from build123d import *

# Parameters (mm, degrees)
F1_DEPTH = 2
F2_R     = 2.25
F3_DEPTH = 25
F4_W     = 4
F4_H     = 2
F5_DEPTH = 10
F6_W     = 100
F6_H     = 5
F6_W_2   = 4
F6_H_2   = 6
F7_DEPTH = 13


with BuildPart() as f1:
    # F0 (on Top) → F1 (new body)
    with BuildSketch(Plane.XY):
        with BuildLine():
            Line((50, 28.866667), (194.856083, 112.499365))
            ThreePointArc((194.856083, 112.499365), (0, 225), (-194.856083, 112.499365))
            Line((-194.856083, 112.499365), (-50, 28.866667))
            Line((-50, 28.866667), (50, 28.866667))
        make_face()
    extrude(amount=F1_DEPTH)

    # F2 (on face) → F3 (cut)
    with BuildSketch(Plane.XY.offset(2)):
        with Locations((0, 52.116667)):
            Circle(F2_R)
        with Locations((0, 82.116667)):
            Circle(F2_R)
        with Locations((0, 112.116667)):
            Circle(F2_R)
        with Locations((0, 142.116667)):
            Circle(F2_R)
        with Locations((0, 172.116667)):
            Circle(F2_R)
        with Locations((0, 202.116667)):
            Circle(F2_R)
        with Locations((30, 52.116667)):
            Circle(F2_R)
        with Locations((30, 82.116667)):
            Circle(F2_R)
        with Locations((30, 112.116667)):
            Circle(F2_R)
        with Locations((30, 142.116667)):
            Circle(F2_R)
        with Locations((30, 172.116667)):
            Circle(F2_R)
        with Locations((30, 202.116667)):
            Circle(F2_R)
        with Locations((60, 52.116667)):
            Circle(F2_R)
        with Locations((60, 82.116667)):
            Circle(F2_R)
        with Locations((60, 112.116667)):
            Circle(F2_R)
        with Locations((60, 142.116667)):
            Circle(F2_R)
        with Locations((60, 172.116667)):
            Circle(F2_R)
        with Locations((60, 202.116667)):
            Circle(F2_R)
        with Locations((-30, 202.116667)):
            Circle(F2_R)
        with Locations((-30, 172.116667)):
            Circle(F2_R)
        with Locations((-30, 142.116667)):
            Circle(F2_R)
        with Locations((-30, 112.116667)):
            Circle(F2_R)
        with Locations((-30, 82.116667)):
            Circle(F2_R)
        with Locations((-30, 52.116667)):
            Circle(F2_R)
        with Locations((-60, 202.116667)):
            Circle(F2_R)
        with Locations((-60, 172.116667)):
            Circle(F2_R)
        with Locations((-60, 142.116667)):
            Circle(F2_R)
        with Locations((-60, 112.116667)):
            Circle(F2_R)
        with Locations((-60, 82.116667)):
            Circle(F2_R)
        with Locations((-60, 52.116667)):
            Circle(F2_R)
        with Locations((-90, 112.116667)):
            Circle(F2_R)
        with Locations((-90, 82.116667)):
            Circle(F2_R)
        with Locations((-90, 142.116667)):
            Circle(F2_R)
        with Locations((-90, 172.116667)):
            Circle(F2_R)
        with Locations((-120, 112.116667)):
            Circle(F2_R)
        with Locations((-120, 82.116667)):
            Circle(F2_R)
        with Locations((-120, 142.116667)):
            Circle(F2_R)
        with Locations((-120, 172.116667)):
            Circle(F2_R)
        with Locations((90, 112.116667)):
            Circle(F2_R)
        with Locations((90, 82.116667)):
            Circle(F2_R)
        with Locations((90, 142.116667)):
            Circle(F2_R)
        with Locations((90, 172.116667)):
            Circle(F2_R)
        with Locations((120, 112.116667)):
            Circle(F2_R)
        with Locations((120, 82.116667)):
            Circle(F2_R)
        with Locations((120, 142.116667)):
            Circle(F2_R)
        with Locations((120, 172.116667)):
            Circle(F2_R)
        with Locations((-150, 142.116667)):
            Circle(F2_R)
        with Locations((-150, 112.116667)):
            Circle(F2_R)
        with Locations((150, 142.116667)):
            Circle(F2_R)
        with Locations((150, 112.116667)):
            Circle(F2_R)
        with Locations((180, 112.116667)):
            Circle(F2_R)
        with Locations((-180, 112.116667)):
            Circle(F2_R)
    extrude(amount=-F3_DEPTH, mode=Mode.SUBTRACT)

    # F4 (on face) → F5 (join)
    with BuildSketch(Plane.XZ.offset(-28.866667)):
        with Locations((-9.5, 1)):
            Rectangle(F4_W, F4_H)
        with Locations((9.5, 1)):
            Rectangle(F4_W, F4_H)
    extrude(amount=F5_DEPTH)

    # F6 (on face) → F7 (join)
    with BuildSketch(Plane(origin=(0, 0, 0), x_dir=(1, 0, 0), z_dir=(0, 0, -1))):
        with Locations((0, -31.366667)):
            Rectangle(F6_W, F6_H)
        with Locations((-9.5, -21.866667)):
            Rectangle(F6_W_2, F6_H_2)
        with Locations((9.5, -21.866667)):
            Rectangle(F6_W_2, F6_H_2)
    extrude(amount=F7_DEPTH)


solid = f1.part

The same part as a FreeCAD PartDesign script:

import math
import FreeCAD as App
import Part
import Sketcher

V = App.Vector
Q = App.Units.Quantity


def add_polygon(sketch, points):
    """Adds a closed chain of lines whose ends are joined by coincident constraints."""
    first, n = sketch.GeometryCount, len(points)
    for a, b in zip(points, points[1:] + points[:1]):
        sketch.addGeometry(Part.LineSegment(App.Vector(*a, 0), App.Vector(*b, 0)), False)
    for i in range(n):
        sketch.addConstraint(Sketcher.Constraint("Coincident", first + i, 2, first + (i + 1) % n, 1))

doc = App.newDocument("Part")
params = doc.addObject("Spreadsheet::Sheet", "Params")
for row, (alias, value) in enumerate([
    ("sketch1_radius", "225.000001 mm"),
    ("sketch1_width", "100 mm"),
    ("pad1_length", "2 mm"),
    ("sketch2_diameter", "4.5 mm"),
    ("pocket1_length", "25 mm"),
    ("sketch3_width", "4 mm"),
    ("sketch3_height", "2 mm"),
    ("pad2_length", "10 mm"),
    ("sketch4_width", "100 mm"),
    ("sketch4_width2", "4 mm"),
    ("sketch4_height", "5 mm"),
    ("sketch4_height2", "6 mm"),
    ("pad3_length", "13 mm"),
], start=1):
    params.set(f"A{row}", alias)
    params.set(f"B{row}", "=" + value)
    params.setAlias(f"B{row}", alias)

body = doc.addObject("PartDesign::Body", "Body")

# Sketch on XY plane
sketch1 = doc.addObject("Sketcher::SketchObject", "Sketch")
body.addObject(sketch1)
sketch1.AttachmentSupport = (doc.XY_Plane, [""])
sketch1.MapMode = "FlatFace"
sketch1.addGeometry([
    Part.LineSegment(V(50, 29, 0), V(195, 112, 0)),
    Part.ArcOfCircle(Part.Circle(V(0, 0, 0), V(0, 0, 1), 225), math.radians(30), math.radians(150)),
    Part.LineSegment(V(-195, 112, 0), V(-50, 29, 0)),
    Part.LineSegment(V(-50, 29, 0), V(50, 29, 0)),
], False)
sketch1.addConstraint([
    Sketcher.Constraint("Coincident", 0, 2, 1, 1),
    Sketcher.Constraint("Coincident", 1, 2, 2, 1),
    Sketcher.Constraint("Coincident", 2, 2, 3, 1),
    Sketcher.Constraint("Coincident", 3, 2, 0, 1),
    Sketcher.Constraint("Horizontal", 3),
    Sketcher.Constraint("Coincident", 1, 3, -1, 1),
    Sketcher.Constraint("Horizontal", 0, 2, 1, 2),
    Sketcher.Constraint("Equal", 0, 2),
    Sketcher.Constraint("Radius", 1, Q("225.000001 mm")),
    Sketcher.Constraint("DistanceX", 3, 1, 3, 2, Q("100 mm")),
    Sketcher.Constraint("Angle", 0, Q("30 deg")),
    Sketcher.Constraint("DistanceY", 2, 2, 0, 2, Q("83.632698 mm")),
])
sketch1.setExpression("Constraints[8]", "Params.sketch1_radius")
sketch1.setExpression("Constraints[9]", "Params.sketch1_width")
pad1 = doc.addObject("PartDesign::Pad", "Pad")
body.addObject(pad1)
pad1.Profile = sketch1
pad1.setExpression("Length", "Params.pad1_length")

# Sketch on XY plane
sketch2 = doc.addObject("Sketcher::SketchObject", "Sketch001")
body.addObject(sketch2)
sketch2.AttachmentSupport = (doc.XY_Plane, [""])
sketch2.MapMode = "FlatFace"
sketch2.AttachmentOffset = App.Placement(V(0, 0, 2), App.Rotation())
sketch2.addGeometry([
    Part.Circle(V(0, 52.1, 0), V(0, 0, 1), 2.2),  # 0
    Part.Circle(V(0, 82.1, 0), V(0, 0, 1), 2.2),  # 1
    Part.Circle(V(0, 112.1, 0), V(0, 0, 1), 2.2),  # 2
    Part.Circle(V(0, 142.1, 0), V(0, 0, 1), 2.2),  # 3
    Part.Circle(V(0, 172.1, 0), V(0, 0, 1), 2.2),  # 4
    Part.Circle(V(0, 202.1, 0), V(0, 0, 1), 2.2),  # 5
    Part.Circle(V(30, 52.1, 0), V(0, 0, 1), 2.2),  # 6
    Part.Circle(V(30, 82.1, 0), V(0, 0, 1), 2.2),  # 7
    Part.Circle(V(30, 112.1, 0), V(0, 0, 1), 2.2),  # 8
    Part.Circle(V(30, 142.1, 0), V(0, 0, 1), 2.2),  # 9
    Part.Circle(V(30, 172.1, 0), V(0, 0, 1), 2.2),  # 10
    Part.Circle(V(30, 202.1, 0), V(0, 0, 1), 2.2),  # 11
    Part.Circle(V(60, 52.1, 0), V(0, 0, 1), 2.2),  # 12
    Part.Circle(V(60, 82.1, 0), V(0, 0, 1), 2.2),  # 13
    Part.Circle(V(60, 112.1, 0), V(0, 0, 1), 2.2),  # 14
    Part.Circle(V(60, 142.1, 0), V(0, 0, 1), 2.2),  # 15
    Part.Circle(V(60, 172.1, 0), V(0, 0, 1), 2.2),  # 16
    Part.Circle(V(60, 202.1, 0), V(0, 0, 1), 2.2),  # 17
    Part.Circle(V(-30, 202.1, 0), V(0, 0, 1), 2.2),  # 18
    Part.Circle(V(-30, 172.1, 0), V(0, 0, 1), 2.2),  # 19
    Part.Circle(V(-30, 142.1, 0), V(0, 0, 1), 2.2),  # 20
    Part.Circle(V(-30, 112.1, 0), V(0, 0, 1), 2.2),  # 21
    Part.Circle(V(-30, 82.1, 0), V(0, 0, 1), 2.2),  # 22
    Part.Circle(V(-30, 52.1, 0), V(0, 0, 1), 2.2),  # 23
    Part.Circle(V(-60, 202.1, 0), V(0, 0, 1), 2.2),  # 24
    Part.Circle(V(-60, 172.1, 0), V(0, 0, 1), 2.2),  # 25
    Part.Circle(V(-60, 142.1, 0), V(0, 0, 1), 2.2),  # 26
    Part.Circle(V(-60, 112.1, 0), V(0, 0, 1), 2.2),  # 27
    Part.Circle(V(-60, 82.1, 0), V(0, 0, 1), 2.2),  # 28
    Part.Circle(V(-60, 52.1, 0), V(0, 0, 1), 2.2),  # 29
    Part.Circle(V(-90, 112.1, 0), V(0, 0, 1), 2.2),  # 30
    Part.Circle(V(-90, 82.1, 0), V(0, 0, 1), 2.2),  # 31
    Part.Circle(V(-90, 142.1, 0), V(0, 0, 1), 2.2),  # 32
    Part.Circle(V(-90, 172.1, 0), V(0, 0, 1), 2.2),  # 33
    Part.Circle(V(-120, 112.1, 0), V(0, 0, 1), 2.2),  # 34
    Part.Circle(V(-120, 82.1, 0), V(0, 0, 1), 2.2),  # 35
    Part.Circle(V(-120, 142.1, 0), V(0, 0, 1), 2.2),  # 36
    Part.Circle(V(-120, 172.1, 0), V(0, 0, 1), 2.2),  # 37
    Part.Circle(V(90, 112.1, 0), V(0, 0, 1), 2.2),  # 38
    Part.Circle(V(90, 82.1, 0), V(0, 0, 1), 2.2),  # 39
    Part.Circle(V(90, 142.1, 0), V(0, 0, 1), 2.2),  # 40
    Part.Circle(V(90, 172.1, 0), V(0, 0, 1), 2.2),  # 41
    Part.Circle(V(120, 112.1, 0), V(0, 0, 1), 2.2),  # 42
    Part.Circle(V(120, 82.1, 0), V(0, 0, 1), 2.2),  # 43
    Part.Circle(V(120, 142.1, 0), V(0, 0, 1), 2.2),  # 44
    Part.Circle(V(120, 172.1, 0), V(0, 0, 1), 2.2),  # 45
    Part.Circle(V(-150, 142.1, 0), V(0, 0, 1), 2.2),  # 46
    Part.Circle(V(-150, 112.1, 0), V(0, 0, 1), 2.2),  # 47
    Part.Circle(V(150, 142.1, 0), V(0, 0, 1), 2.2),  # 48
    Part.Circle(V(150, 112.1, 0), V(0, 0, 1), 2.2),  # 49
    Part.Circle(V(180, 112.1, 0), V(0, 0, 1), 2.2),  # 50
    Part.Circle(V(-180, 112.1, 0), V(0, 0, 1), 2.2),  # 51
], False)
sketch2.addConstraint([
    Sketcher.Constraint("Equal", 0, 1),
    Sketcher.Constraint("Equal", 1, 2),
    Sketcher.Constraint("Equal", 2, 3),
    Sketcher.Constraint("Equal", 3, 4),
    Sketcher.Constraint("Equal", 4, 5),
    Sketcher.Constraint("Equal", 5, 6),
    Sketcher.Constraint("Equal", 6, 7),
    Sketcher.Constraint("Equal", 7, 8),
    Sketcher.Constraint("Equal", 8, 9),
    Sketcher.Constraint("Equal", 9, 10),
    Sketcher.Constraint("Equal", 10, 11),
    Sketcher.Constraint("Equal", 11, 12),
    Sketcher.Constraint("Equal", 12, 13),
    Sketcher.Constraint("Equal", 13, 14),
    Sketcher.Constraint("Equal", 14, 15),
    Sketcher.Constraint("Equal", 15, 16),
    Sketcher.Constraint("Equal", 16, 17),
    Sketcher.Constraint("Equal", 17, 18),
    Sketcher.Constraint("Equal", 18, 19),
    Sketcher.Constraint("Equal", 19, 20),
    Sketcher.Constraint("Equal", 20, 21),
    Sketcher.Constraint("Equal", 21, 22),
    Sketcher.Constraint("Equal", 22, 23),
    Sketcher.Constraint("Equal", 23, 24),
    Sketcher.Constraint("Equal", 24, 25),
    Sketcher.Constraint("Equal", 25, 26),
    Sketcher.Constraint("Equal", 26, 27),
    Sketcher.Constraint("Equal", 27, 28),
    Sketcher.Constraint("Equal", 28, 29),
    Sketcher.Constraint("Equal", 29, 30),
    Sketcher.Constraint("Equal", 30, 31),
    Sketcher.Constraint("Equal", 31, 32),
    Sketcher.Constraint("Equal", 32, 33),
    Sketcher.Constraint("Equal", 33, 34),
    Sketcher.Constraint("Equal", 34, 35),
    Sketcher.Constraint("Equal", 35, 36),
    Sketcher.Constraint("Equal", 36, 37),
    Sketcher.Constraint("Equal", 37, 38),
    Sketcher.Constraint("Equal", 38, 39),
    Sketcher.Constraint("Equal", 39, 40),
    Sketcher.Constraint("Equal", 40, 41),
    Sketcher.Constraint("Equal", 41, 42),
    Sketcher.Constraint("Equal", 42, 43),
    Sketcher.Constraint("Equal", 43, 44),
    Sketcher.Constraint("Equal", 44, 45),
    Sketcher.Constraint("Equal", 45, 46),
    Sketcher.Constraint("Equal", 46, 47),
    Sketcher.Constraint("Equal", 47, 48),
    Sketcher.Constraint("Equal", 48, 49),
    Sketcher.Constraint("Equal", 49, 50),
    Sketcher.Constraint("Equal", 50, 51),
    Sketcher.Constraint("Symmetric", 11, 3, 18, 3, -2),
    Sketcher.Constraint("Symmetric", 10, 3, 19, 3, -2),
    Sketcher.Constraint("Symmetric", 9, 3, 20, 3, -2),
    Sketcher.Constraint("Symmetric", 8, 3, 21, 3, -2),
    Sketcher.Constraint("Symmetric", 7, 3, 22, 3, -2),
    Sketcher.Constraint("Symmetric", 6, 3, 23, 3, -2),
    Sketcher.Constraint("Symmetric", 17, 3, 24, 3, -2),
    Sketcher.Constraint("Symmetric", 16, 3, 25, 3, -2),
    Sketcher.Constraint("Symmetric", 15, 3, 26, 3, -2),
    Sketcher.Constraint("Symmetric", 14, 3, 27, 3, -2),
    Sketcher.Constraint("Symmetric", 13, 3, 28, 3, -2),
    Sketcher.Constraint("Symmetric", 12, 3, 29, 3, -2),
    Sketcher.Constraint("Symmetric", 30, 3, 38, 3, -2),
    Sketcher.Constraint("Symmetric", 31, 3, 39, 3, -2),
    Sketcher.Constraint("Symmetric", 32, 3, 40, 3, -2),
    Sketcher.Constraint("Symmetric", 33, 3, 41, 3, -2),
    Sketcher.Constraint("Symmetric", 34, 3, 42, 3, -2),
    Sketcher.Constraint("Symmetric", 35, 3, 43, 3, -2),
    Sketcher.Constraint("Symmetric", 36, 3, 44, 3, -2),
    Sketcher.Constraint("Symmetric", 37, 3, 45, 3, -2),
    Sketcher.Constraint("Symmetric", 46, 3, 48, 3, -2),
    Sketcher.Constraint("Symmetric", 47, 3, 49, 3, -2),
    Sketcher.Constraint("Symmetric", 50, 3, 51, 3, -2),
    Sketcher.Constraint("PointOnObject", 0, 3, -2),
    Sketcher.Constraint("PointOnObject", 1, 3, -2),
    Sketcher.Constraint("PointOnObject", 2, 3, -2),
    Sketcher.Constraint("PointOnObject", 3, 3, -2),
    Sketcher.Constraint("PointOnObject", 4, 3, -2),
    Sketcher.Constraint("PointOnObject", 5, 3, -2),
    Sketcher.Constraint("Horizontal", 0, 3, 6, 3),
    Sketcher.Constraint("Horizontal", 1, 3, 7, 3),
    Sketcher.Constraint("Horizontal", 2, 3, 8, 3),
    Sketcher.Constraint("Horizontal", 3, 3, 9, 3),
    Sketcher.Constraint("Horizontal", 4, 3, 10, 3),
    Sketcher.Constraint("Horizontal", 5, 3, 11, 3),
    Sketcher.Constraint("Horizontal", 6, 3, 12, 3),
    Sketcher.Constraint("Horizontal", 7, 3, 13, 3),
    Sketcher.Constraint("Horizontal", 8, 3, 14, 3),
    Sketcher.Constraint("Horizontal", 9, 3, 15, 3),
    Sketcher.Constraint("Horizontal", 10, 3, 16, 3),
    Sketcher.Constraint("Horizontal", 11, 3, 17, 3),
    Sketcher.Constraint("Horizontal", 27, 3, 30, 3),
    Sketcher.Constraint("Horizontal", 28, 3, 31, 3),
    Sketcher.Constraint("Horizontal", 26, 3, 32, 3),
    Sketcher.Constraint("Horizontal", 25, 3, 33, 3),
    Sketcher.Constraint("Horizontal", 30, 3, 34, 3),
    Sketcher.Constraint("Horizontal", 31, 3, 35, 3),
    Sketcher.Constraint("Horizontal", 32, 3, 36, 3),
    Sketcher.Constraint("Horizontal", 33, 3, 37, 3),
    Sketcher.Constraint("Horizontal", 44, 3, 46, 3),
    Sketcher.Constraint("Horizontal", 42, 3, 47, 3),
    Sketcher.Constraint("Horizontal", 49, 3, 50, 3),
    Sketcher.Constraint("Vertical", 6, 3, 7, 3),
    Sketcher.Constraint("Vertical", 7, 3, 8, 3),
    Sketcher.Constraint("Vertical", 8, 3, 9, 3),
    Sketcher.Constraint("Vertical", 9, 3, 10, 3),
    Sketcher.Constraint("Vertical", 10, 3, 11, 3),
    Sketcher.Constraint("Vertical", 12, 3, 13, 3),
    Sketcher.Constraint("Vertical", 13, 3, 14, 3),
    Sketcher.Constraint("Vertical", 14, 3, 15, 3),
    Sketcher.Constraint("Vertical", 15, 3, 16, 3),
    Sketcher.Constraint("Vertical", 16, 3, 17, 3),
    Sketcher.Constraint("Vertical", 30, 3, 31, 3),
    Sketcher.Constraint("Vertical", 31, 3, 32, 3),
    Sketcher.Constraint("Vertical", 32, 3, 33, 3),
    Sketcher.Constraint("Vertical", 34, 3, 35, 3),
    Sketcher.Constraint("Vertical", 35, 3, 36, 3),
    Sketcher.Constraint("Vertical", 36, 3, 37, 3),
    Sketcher.Constraint("Vertical", 46, 3, 47, 3),
    Sketcher.Constraint("Diameter", 0, Q("4.5 mm")),
    Sketcher.Constraint("DistanceX", -1, 1, 6, 3, Q("30 mm")),
    Sketcher.Constraint("DistanceX", -1, 1, 12, 3, Q("60 mm")),
    Sketcher.Constraint("DistanceX", 30, 3, -1, 1, Q("90 mm")),
    Sketcher.Constraint("DistanceX", 34, 3, -1, 1, Q("120 mm")),
    Sketcher.Constraint("DistanceX", 46, 3, -1, 1, Q("150 mm")),
    Sketcher.Constraint("DistanceX", -1, 1, 50, 3, Q("180 mm")),
    Sketcher.Constraint("DistanceY", 0, 3, 1, 3, Q("30 mm")),
    Sketcher.Constraint("DistanceY", 1, 3, 2, 3, Q("30 mm")),
    Sketcher.Constraint("DistanceY", 2, 3, 3, 3, Q("30 mm")),
    Sketcher.Constraint("DistanceY", 3, 3, 4, 3, Q("30 mm")),
    Sketcher.Constraint("DistanceY", 4, 3, 5, 3, Q("30 mm")),
    Sketcher.Constraint("DistanceY", -1, 1, 0, 3, Q("52.116667 mm")),
])
sketch2.setExpression("Constraints[120]", "Params.sketch2_diameter")
pocket1 = doc.addObject("PartDesign::Pocket", "Pocket")
body.addObject(pocket1)
pocket1.Profile = sketch2
pocket1.setExpression("Length", "Params.pocket1_length")

# Sketch on XZ plane
sketch3 = doc.addObject("Sketcher::SketchObject", "Sketch002")
body.addObject(sketch3)
sketch3.AttachmentSupport = (doc.XZ_Plane, [""])
sketch3.MapMode = "FlatFace"
sketch3.AttachmentOffset = App.Placement(V(0, 0, -28.866667), App.Rotation())
add_polygon(sketch3, [(-11.5, 2), (-11.5, 0), (-7.5, 0), (-7.5, 2)])  # lines 0-3
add_polygon(sketch3, [(7.5, 2), (7.5, 0), (11.5, 0), (11.5, 2)])  # lines 4-7
sketch3.addConstraint([
    Sketcher.Constraint("Vertical", 0),
    Sketcher.Constraint("Horizontal", 1),
    Sketcher.Constraint("Vertical", 2),
    Sketcher.Constraint("Horizontal", 3),
    Sketcher.Constraint("Vertical", 4),
    Sketcher.Constraint("Horizontal", 5),
    Sketcher.Constraint("Vertical", 6),
    Sketcher.Constraint("Horizontal", 7),
    Sketcher.Constraint("Symmetric", 1, 2, 4, 2, -1, 1),
    Sketcher.Constraint("Symmetric", 0, 2, 5, 2, -2),
    Sketcher.Constraint("Horizontal", 3, 2, 6, 2),
    Sketcher.Constraint("DistanceX", 1, 1, 1, 2, Q("4 mm")),
    Sketcher.Constraint("DistanceY", 0, 2, 0, 1, Q("2 mm")),
    Sketcher.Constraint("DistanceX", 1, 2, 4, 2, Q("15 mm")),
])
sketch3.setExpression("Constraints[19]", "Params.sketch3_width")
sketch3.setExpression("Constraints[20]", "Params.sketch3_height")
pad2 = doc.addObject("PartDesign::Pad", "Pad001")
body.addObject(pad2)
pad2.Profile = sketch3
pad2.setExpression("Length", "Params.pad2_length")

# Sketch on XY plane
sketch4 = doc.addObject("Sketcher::SketchObject", "Sketch003")
body.addObject(sketch4)
sketch4.AttachmentSupport = (doc.XY_Plane, [""])
sketch4.MapMode = "FlatFace"
add_polygon(sketch4, [(-50, 28.9), (-50, 33.9), (50, 33.9), (50, 28.9)])  # lines 0-3
add_polygon(sketch4, [(-11.5, 18.9), (-11.5, 24.9), (-7.5, 24.9), (-7.5, 18.9)])  # lines 4-7
add_polygon(sketch4, [(7.5, 18.9), (7.5, 24.9), (11.5, 24.9), (11.5, 18.9)])  # lines 8-11
sketch4.addConstraint([
    Sketcher.Constraint("Vertical", 0),
    Sketcher.Constraint("Horizontal", 1),
    Sketcher.Constraint("Vertical", 2),
    Sketcher.Constraint("Horizontal", 3),
    Sketcher.Constraint("Vertical", 4),
    Sketcher.Constraint("Horizontal", 5),
    Sketcher.Constraint("Vertical", 6),
    Sketcher.Constraint("Horizontal", 7),
    Sketcher.Constraint("Vertical", 8),
    Sketcher.Constraint("Horizontal", 9),
    Sketcher.Constraint("Vertical", 10),
    Sketcher.Constraint("Horizontal", 11),
    Sketcher.Constraint("Symmetric", 5, 2, 8, 2, -2),
    Sketcher.Constraint("Symmetric", 7, 2, 10, 2, -2),
    Sketcher.Constraint("DistanceX", 1, 1, 1, 2, Q("100 mm")),
    Sketcher.Constraint("DistanceX", 5, 1, 5, 2, Q("4 mm")),
    Sketcher.Constraint("DistanceY", 0, 1, 0, 2, Q("5 mm")),
    Sketcher.Constraint("DistanceY", 4, 1, 4, 2, Q("6 mm")),
    Sketcher.Constraint("DistanceX", 0, 2, -1, 1, Q("50 mm")),
    Sketcher.Constraint("DistanceY", 4, 2, 3, 2, Q("4 mm")),
    Sketcher.Constraint("DistanceX", 5, 2, 8, 2, Q("15 mm")),
    Sketcher.Constraint("DistanceY", -1, 1, 0, 2, Q("33.866667 mm")),
])
sketch4.setExpression("Constraints[26]", "Params.sketch4_width")
sketch4.setExpression("Constraints[27]", "Params.sketch4_width2")
sketch4.setExpression("Constraints[28]", "Params.sketch4_height")
sketch4.setExpression("Constraints[29]", "Params.sketch4_height2")
pad3 = doc.addObject("PartDesign::Pad", "Pad002")
body.addObject(pad3)
pad3.Profile = sketch4
pad3.setExpression("Length", "Params.pad3_length")
pad3.Reversed = True

doc.recompute()
